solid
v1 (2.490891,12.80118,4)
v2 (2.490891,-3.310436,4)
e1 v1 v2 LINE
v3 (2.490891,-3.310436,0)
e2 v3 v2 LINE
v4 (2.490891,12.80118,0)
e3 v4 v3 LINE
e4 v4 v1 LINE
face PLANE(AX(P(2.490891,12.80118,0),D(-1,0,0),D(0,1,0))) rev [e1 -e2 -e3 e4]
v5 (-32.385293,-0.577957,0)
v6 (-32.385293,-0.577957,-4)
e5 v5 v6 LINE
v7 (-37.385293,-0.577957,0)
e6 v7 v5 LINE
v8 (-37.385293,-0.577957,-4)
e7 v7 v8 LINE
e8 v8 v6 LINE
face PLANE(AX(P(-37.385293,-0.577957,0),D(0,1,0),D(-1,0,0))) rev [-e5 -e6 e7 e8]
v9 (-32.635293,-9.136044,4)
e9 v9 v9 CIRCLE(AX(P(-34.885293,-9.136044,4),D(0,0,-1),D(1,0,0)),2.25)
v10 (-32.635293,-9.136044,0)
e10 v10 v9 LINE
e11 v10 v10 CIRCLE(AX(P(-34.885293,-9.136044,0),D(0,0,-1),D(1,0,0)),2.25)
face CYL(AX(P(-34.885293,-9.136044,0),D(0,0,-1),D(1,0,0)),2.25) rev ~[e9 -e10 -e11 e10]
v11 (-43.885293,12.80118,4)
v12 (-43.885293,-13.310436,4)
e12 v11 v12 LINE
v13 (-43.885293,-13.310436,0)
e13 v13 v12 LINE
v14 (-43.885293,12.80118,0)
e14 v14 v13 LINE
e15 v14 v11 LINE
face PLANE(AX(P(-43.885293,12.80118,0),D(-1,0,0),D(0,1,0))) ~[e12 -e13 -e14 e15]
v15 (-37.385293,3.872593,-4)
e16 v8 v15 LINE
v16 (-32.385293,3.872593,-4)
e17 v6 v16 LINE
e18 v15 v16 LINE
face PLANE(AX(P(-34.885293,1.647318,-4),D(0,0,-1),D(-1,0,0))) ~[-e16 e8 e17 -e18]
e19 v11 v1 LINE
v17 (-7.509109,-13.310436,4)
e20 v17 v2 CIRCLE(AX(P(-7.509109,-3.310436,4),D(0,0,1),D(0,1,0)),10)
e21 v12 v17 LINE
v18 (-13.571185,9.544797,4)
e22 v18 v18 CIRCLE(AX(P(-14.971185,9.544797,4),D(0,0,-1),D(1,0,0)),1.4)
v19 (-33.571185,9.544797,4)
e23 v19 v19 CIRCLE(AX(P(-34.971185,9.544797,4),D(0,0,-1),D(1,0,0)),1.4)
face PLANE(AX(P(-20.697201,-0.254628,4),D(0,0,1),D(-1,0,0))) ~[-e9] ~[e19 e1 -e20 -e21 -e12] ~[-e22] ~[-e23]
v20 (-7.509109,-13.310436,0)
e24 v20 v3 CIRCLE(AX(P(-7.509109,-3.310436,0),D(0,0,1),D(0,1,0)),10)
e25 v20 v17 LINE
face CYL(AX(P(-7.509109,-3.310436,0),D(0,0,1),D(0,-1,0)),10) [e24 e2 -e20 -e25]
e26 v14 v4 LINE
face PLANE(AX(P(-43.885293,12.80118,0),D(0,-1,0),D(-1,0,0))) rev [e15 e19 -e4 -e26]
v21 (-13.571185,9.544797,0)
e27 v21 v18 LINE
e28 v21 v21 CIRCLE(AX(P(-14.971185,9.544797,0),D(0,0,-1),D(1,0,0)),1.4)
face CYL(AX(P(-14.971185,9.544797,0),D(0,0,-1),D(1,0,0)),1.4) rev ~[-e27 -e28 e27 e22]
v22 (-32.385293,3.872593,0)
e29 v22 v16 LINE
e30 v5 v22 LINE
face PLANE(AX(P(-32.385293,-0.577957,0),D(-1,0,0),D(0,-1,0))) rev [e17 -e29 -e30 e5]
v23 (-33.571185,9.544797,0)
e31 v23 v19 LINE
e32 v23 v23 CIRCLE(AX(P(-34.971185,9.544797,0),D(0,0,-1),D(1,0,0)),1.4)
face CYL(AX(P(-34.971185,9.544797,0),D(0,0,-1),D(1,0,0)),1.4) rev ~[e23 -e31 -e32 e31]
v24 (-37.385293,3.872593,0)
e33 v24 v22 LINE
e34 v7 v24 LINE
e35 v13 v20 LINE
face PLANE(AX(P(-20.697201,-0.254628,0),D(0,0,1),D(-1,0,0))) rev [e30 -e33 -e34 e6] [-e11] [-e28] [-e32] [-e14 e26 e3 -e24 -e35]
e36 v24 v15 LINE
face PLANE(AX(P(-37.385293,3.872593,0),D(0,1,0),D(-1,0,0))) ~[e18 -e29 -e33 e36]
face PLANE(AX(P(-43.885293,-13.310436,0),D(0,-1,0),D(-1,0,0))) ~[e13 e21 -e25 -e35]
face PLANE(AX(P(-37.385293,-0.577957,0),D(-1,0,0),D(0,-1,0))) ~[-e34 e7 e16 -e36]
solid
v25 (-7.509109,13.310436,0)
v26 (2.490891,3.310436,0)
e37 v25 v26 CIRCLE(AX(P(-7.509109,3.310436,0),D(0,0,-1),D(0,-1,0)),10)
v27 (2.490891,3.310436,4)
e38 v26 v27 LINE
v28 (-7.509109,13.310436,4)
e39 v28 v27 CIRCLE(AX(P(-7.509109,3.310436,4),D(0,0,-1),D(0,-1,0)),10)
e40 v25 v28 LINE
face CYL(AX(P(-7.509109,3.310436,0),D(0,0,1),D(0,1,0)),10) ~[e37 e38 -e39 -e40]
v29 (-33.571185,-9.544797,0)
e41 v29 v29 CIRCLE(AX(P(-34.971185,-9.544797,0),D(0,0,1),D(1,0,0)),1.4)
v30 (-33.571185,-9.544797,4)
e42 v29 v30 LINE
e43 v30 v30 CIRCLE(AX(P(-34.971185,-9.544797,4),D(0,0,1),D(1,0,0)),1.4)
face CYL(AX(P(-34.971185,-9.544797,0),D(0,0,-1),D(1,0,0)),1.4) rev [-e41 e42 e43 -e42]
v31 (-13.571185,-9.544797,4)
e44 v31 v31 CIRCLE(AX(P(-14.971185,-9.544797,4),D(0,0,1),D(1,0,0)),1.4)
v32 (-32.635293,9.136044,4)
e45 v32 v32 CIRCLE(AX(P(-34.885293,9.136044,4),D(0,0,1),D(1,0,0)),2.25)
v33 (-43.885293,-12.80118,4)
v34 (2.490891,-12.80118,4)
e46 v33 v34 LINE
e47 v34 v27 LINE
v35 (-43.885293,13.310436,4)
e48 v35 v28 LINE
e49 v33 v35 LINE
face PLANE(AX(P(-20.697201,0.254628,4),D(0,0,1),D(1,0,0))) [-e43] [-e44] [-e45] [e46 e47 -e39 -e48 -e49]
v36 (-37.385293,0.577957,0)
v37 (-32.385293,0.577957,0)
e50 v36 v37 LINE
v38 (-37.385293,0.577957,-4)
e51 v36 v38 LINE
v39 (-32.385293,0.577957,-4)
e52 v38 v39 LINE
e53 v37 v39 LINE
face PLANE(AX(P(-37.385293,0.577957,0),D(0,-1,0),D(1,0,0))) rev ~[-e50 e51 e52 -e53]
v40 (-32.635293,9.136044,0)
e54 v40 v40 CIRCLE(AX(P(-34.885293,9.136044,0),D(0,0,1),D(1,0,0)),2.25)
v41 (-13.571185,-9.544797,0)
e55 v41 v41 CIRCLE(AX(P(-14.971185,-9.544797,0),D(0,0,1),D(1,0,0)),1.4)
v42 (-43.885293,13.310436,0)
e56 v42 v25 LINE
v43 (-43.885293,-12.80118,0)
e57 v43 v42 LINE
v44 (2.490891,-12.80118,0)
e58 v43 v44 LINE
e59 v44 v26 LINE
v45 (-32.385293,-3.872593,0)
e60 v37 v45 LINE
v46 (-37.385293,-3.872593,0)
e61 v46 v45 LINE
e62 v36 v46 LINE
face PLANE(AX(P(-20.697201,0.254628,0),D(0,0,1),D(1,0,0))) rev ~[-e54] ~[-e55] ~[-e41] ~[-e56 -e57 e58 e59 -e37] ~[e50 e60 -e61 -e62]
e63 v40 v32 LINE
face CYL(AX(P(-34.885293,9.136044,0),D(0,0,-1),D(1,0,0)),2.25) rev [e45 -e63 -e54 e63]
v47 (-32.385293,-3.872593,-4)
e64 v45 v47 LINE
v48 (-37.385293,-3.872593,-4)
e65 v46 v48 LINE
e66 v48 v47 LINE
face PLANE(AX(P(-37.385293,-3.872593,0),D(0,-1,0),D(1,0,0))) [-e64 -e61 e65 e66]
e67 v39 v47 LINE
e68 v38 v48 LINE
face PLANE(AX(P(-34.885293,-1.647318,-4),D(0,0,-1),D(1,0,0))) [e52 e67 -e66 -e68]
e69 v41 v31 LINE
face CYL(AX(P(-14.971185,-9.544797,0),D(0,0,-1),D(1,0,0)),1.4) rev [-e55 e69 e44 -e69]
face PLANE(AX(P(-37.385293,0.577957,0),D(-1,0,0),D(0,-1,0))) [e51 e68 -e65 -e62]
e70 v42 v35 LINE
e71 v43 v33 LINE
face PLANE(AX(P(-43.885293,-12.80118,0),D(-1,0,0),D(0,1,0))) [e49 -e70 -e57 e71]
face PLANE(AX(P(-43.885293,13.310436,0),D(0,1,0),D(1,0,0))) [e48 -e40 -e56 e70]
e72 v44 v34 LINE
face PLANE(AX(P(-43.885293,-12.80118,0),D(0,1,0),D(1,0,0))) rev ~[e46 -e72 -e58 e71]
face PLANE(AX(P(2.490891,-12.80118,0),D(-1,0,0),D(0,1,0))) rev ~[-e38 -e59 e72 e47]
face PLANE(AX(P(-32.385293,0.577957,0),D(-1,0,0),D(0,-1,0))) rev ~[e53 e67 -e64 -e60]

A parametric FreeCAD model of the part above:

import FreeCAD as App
import Part
import Sketcher


def edges_at(feature, points):
    """Names of the edges that pass closest to the given points."""
    edges = feature.Shape.Edges
    near = lambda p: min(range(len(edges)), key=lambda i: edges[i].distToShape(Part.Vertex(*p))[0])
    return sorted({f"Edge{near(p) + 1}" for p in points})


def add_polygon(sketch, points):
    """Adds a closed chain of lines whose ends are joined by coincident constraints."""
    first, n = sketch.GeometryCount, len(points)
    for a, b in zip(points, points[1:] + points[:1]):
        sketch.addGeometry(Part.LineSegment(App.Vector(*a, 0), App.Vector(*b, 0)), False)
    for i in range(n):
        sketch.addConstraint(Sketcher.Constraint("Coincident", first + i, 2, first + (i + 1) % n, 1))

doc = App.newDocument("Part")
params = doc.addObject("Spreadsheet::Sheet", "Params")
for row, (alias, value) in enumerate([
    ("sketch1_diameter", "2.8 mm"),
    ("sketch1_diameter2", "4.5 mm"),
    ("pad1_length", "4 mm"),
    ("sketch2_width", "5 mm"),
    ("pad2_length", "4 mm"),
    ("fillet_radius", "10 mm"),
], start=1):
    params.set(f"A{row}", alias)
    params.set(f"B{row}", "=" + value)
    params.setAlias(f"B{row}", alias)

body = doc.addObject("PartDesign::Body", "Body")

sketch1 = doc.addObject("Sketcher::SketchObject", "Sketch")
body.addObject(sketch1)
sketch1.AttachmentSupport = (doc.XY_Plane, [""])
sketch1.MapMode = "FlatFace"
add_polygon(sketch1, [(-43.885293, 13.310436), (-43.885293, -12.80118), (2.490891, -12.80118), (2.490891, 13.310436)])
sketch1.addGeometry(Part.Circle(App.Vector(-34.971185, -9.544797, 0), App.Vector(0, 0, 1), 1.4), False)
sketch1.addGeometry(Part.Circle(App.Vector(-14.971185, -9.544797, 0), App.Vector(0, 0, 1), 1.4), False)
sketch1.addGeometry(Part.Circle(App.Vector(-34.885293, 9.136044, 0), App.Vector(0, 0, 1), 2.25), False)
sketch1.addConstraint([
    Sketcher.Constraint("Vertical", 0),
    Sketcher.Constraint("Horizontal", 1),
    Sketcher.Constraint("Vertical", 2),
    Sketcher.Constraint("Horizontal", 3),
    Sketcher.Constraint("Equal", 4, 5),
    Sketcher.Constraint("Horizontal", 4, 3, 5, 3),
    Sketcher.Constraint("Diameter", 4, 2.8),
    Sketcher.Constraint("Diameter", 6, 4.5),
    Sketcher.Constraint("DistanceX", 4, 3, 5, 3, 20.0),
    Sketcher.Constraint("DistanceX", 0, 2, 6, 3, 9.0),
    Sketcher.Constraint("DistanceX", 1, 1, 1, 2, 46.376184),
    Sketcher.Constraint("DistanceY", 0, 2, 0, 1, 26.111616),
    Sketcher.Constraint("DistanceY", 0, 2, -1, 1, 12.80118),
    Sketcher.Constraint("DistanceX", -1, 1, 1, 2, 2.490891),
    Sketcher.Constraint("DistanceY", 4, 3, 6, 3, 18.680841),
    Sketcher.Constraint("DistanceY", 6, 3, 2, 2, 4.174392),
    Sketcher.Constraint("DistanceX", 4, 3, -1, 1, 34.971185),
])
sketch1.setExpression("Constraints[10]", "Params.sketch1_diameter")
sketch1.setExpression("Constraints[11]", "Params.sketch1_diameter2")
pad1 = doc.addObject("PartDesign::Pad", "Pad")
body.addObject(pad1)
pad1.Profile = sketch1
pad1.setExpression("Length", "Params.pad1_length")

sketch2 = doc.addObject("Sketcher::SketchObject", "Sketch001")
body.addObject(sketch2)
sketch2.AttachmentSupport = (doc.XY_Plane, [""])
sketch2.MapMode = "FlatFace"
add_polygon(sketch2, [(-37.385293, -3.872593), (-37.385293, 0.577957), (-32.385293, 0.577957), (-32.385293, -3.872593)])
sketch2.addConstraint([
    Sketcher.Constraint("Vertical", 0),
    Sketcher.Constraint("Horizontal", 1),
    Sketcher.Constraint("Vertical", 2),
    Sketcher.Constraint("Horizontal", 3),
    Sketcher.Constraint("DistanceX", 1, 1, 1, 2, 5.0),
    Sketcher.Constraint("DistanceY", 0, 1, 0, 2, 4.45055),
    Sketcher.Constraint("DistanceX", 0, 2, -1, 1, 37.385293),
    Sketcher.Constraint("DistanceY", -1, 1, 0, 2, 0.577957),
])
sketch2.setExpression("Constraints[8]", "Params.sketch2_width")
pad2 = doc.addObject("PartDesign::Pad", "Pad001")
body.addObject(pad2)
pad2.Profile = sketch2
pad2.setExpression("Length", "Params.pad2_length")
pad2.Reversed = True
doc.recompute()

fillet = doc.addObject("PartDesign::Fillet", "Fillet")
body.addObject(fillet)
fillet.Base = (pad2, edges_at(pad2, [(2.491, 13.31, 2)]))
fillet.setExpression("Radius", "Params.fillet_radius")
body2 = doc.addObject("PartDesign::Body", "Body001")
doc.recompute()

mirroring = doc.addObject("Part::Mirroring", "Mirroring")
mirroring.Source = body
mirroring.Base = App.Vector(0, 0, 0)
mirroring.Normal = App.Vector(0, -1, 0)
body2.BaseFeature = mirroring
doc.recompute()
mirroring.Visibility = False

doc.recompute()
